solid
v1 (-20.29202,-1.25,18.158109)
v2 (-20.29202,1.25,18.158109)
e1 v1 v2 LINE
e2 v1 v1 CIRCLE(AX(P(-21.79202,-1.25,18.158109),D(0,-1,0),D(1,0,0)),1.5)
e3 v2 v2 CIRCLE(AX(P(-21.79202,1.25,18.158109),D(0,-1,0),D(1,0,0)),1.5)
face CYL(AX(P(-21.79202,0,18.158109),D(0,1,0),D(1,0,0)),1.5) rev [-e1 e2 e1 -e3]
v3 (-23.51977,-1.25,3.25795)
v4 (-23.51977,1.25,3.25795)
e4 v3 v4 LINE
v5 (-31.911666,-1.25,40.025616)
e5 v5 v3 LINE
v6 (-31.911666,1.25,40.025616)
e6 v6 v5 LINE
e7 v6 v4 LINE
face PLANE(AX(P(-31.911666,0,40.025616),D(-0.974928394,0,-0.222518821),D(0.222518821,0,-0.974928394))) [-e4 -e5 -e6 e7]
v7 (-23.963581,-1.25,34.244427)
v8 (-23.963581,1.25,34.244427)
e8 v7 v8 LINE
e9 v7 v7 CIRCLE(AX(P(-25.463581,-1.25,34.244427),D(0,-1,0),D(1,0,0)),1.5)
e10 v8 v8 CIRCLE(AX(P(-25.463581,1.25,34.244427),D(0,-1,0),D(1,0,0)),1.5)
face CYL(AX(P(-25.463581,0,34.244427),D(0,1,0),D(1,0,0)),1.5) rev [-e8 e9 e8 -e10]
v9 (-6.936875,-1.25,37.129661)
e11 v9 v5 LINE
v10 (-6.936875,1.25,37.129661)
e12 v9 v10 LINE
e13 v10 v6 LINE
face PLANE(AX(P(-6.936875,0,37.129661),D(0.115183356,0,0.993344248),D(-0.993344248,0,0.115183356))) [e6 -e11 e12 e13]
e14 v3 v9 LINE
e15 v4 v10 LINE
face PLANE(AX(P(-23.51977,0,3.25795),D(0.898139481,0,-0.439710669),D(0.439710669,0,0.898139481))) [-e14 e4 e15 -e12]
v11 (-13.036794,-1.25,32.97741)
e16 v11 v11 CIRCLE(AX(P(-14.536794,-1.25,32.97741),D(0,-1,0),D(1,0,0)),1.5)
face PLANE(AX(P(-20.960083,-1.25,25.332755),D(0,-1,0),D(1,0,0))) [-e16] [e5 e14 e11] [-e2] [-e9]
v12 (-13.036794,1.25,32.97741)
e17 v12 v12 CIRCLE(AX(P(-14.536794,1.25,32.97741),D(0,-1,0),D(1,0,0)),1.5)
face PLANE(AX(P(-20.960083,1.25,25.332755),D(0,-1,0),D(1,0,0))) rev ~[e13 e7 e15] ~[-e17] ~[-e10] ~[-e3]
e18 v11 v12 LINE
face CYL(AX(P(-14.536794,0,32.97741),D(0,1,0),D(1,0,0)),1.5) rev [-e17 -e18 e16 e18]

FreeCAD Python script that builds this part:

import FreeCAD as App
import Part
import Sketcher
from FreeCAD import Vector
Q = App.Units.Quantity


def add_polygon(sketch, points):
    """Adds a closed chain of lines whose ends are joined by coincident constraints."""
    first, n = sketch.GeometryCount, len(points)
    for a, b in zip(points, points[1:] + points[:1]):
        sketch.addGeometry(Part.LineSegment(App.Vector(*a, 0), App.Vector(*b, 0)), False)
    for i in range(n):
        sketch.addConstraint(Sketcher.Constraint("Coincident", first + i, 2, first + (i + 1) % n, 1))

doc = App.newDocument("Part")
body = doc.addObject("PartDesign::Body", "Body")

# Sketch on XZ plane
sketch1 = body.newObject("Sketcher::SketchObject", "Sketch")
sketch1.AttachmentSupport = (doc.getObject("XZ_Plane"), [""])
sketch1.MapMode = "FlatFace"
add_polygon(sketch1, [(-6.9, 37.1), (-31.9, 40), (-23.5, 3.3)])  # lines 0-2
sketch1.addGeometry(Part.Circle(Vector(-21.8, 18.2, 0), Vector(0, 0, 1), 1.5), False)  # 3
sketch1.addGeometry(Part.Circle(Vector(-25.5, 34.2, 0), Vector(0, 0, 1), 1.5), False)  # 4
sketch1.addGeometry(Part.Circle(Vector(-14.5, 33, 0), Vector(0, 0, 1), 1.5), False)  # 5
sketch1.addConstraint(Sketcher.Constraint("Equal", 3, 4))
sketch1.addConstraint(Sketcher.Constraint("Equal", 4, 5))
sketch1.addConstraint(Sketcher.Constraint("Equal", 1, 2))
sketch1.addConstraint(Sketcher.Constraint("Diameter", 3, Q("3 mm")))
sketch1.addConstraint(Sketcher.Constraint("DistanceY", 3, 3, 5, 3, Q("14.819301 mm")))
sketch1.addConstraint(Sketcher.Constraint("Distance", 0, Q("25.142131 mm")))
sketch1.addConstraint(Sketcher.Constraint("DistanceX", 3, 3, -1, 1, Q("21.79202 mm")))
sketch1.addConstraint(Sketcher.Constraint("DistanceY", -1, 1, 3, 3, Q("18.158109 mm")))
sketch1.addConstraint(Sketcher.Constraint("DistanceX", 4, 3, -1, 1, Q("25.463581 mm")))
sketch1.addConstraint(Sketcher.Constraint("DistanceX", 1, 2, -1, 1, Q("23.51977 mm")))
sketch1.addConstraint(Sketcher.Constraint("DistanceY", -1, 1, 1, 2, Q("3.25795 mm")))
sketch1.addConstraint(Sketcher.Constraint("DistanceY", -1, 1, 2, 2, Q("37.129661 mm")))
sketch1.addConstraint(Sketcher.Constraint("DistanceY", 3, 3, 4, 3, Q("16.086318 mm")))
sketch1.addConstraint(Sketcher.Constraint("DistanceY", 4, 3, 0, 2, Q("5.781189 mm")))
sketch1.addConstraint(Sketcher.Constraint("DistanceX", 0, 2, 5, 3, Q("17.374872 mm")))
pad1 = body.newObject("PartDesign::Pad", "Pad")
pad1.Profile = sketch1
pad1.Length = 2.5
pad1.Midplane = True

doc.recompute()
